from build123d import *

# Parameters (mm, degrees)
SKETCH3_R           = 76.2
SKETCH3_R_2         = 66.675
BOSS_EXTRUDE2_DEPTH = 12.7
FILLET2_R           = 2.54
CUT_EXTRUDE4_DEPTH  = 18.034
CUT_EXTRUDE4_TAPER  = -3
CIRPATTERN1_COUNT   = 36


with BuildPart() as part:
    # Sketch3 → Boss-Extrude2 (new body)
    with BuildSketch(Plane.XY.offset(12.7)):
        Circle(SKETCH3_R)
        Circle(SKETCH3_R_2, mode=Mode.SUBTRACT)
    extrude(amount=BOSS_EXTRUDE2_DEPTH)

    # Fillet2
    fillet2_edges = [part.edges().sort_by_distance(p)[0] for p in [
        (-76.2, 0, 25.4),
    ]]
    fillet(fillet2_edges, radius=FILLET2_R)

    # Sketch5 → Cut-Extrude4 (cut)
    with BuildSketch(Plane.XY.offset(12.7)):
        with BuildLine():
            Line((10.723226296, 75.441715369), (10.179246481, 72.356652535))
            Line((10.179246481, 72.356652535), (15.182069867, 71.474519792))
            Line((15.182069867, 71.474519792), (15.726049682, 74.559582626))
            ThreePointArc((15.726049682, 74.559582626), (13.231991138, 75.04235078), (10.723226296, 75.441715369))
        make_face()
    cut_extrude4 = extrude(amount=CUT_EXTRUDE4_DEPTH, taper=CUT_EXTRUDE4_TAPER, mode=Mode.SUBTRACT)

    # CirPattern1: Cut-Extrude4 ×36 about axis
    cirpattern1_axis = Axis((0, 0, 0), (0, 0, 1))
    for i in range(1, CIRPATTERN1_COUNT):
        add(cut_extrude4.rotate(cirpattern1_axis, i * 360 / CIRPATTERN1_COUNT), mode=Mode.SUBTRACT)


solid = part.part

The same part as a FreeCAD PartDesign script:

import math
import FreeCAD as App
import Part
import Sketcher
Q = App.Units.Quantity


def edges_at(feature, points):
    """Names of the edges that pass closest to the given points."""
    edges = feature.Shape.Edges
    near = lambda p: min(range(len(edges)), key=lambda i: edges[i].distToShape(Part.Vertex(*p))[0])
    return sorted({f"Edge{near(p) + 1}" for p in points})

doc = App.newDocument("Part")
body = doc.addObject("PartDesign::Body", "Body")

# Sketch on XY plane
sketch1 = body.newObject("Sketcher::SketchObject", "Sketch")
sketch1.AttachmentSupport = (doc.getObject("XY_Plane"), [""])
sketch1.MapMode = "FlatFace"
sketch1.AttachmentOffset = App.Placement(App.Vector(0, 0, 0.5 * 25.4), App.Rotation())
sketch1.addGeometry(Part.Circle(App.Vector(0, 0, 0), App.Vector(0, 0, 1), 76.2), False)
sketch1.addGeometry(Part.Circle(App.Vector(0, 0, 0), App.Vector(0, 0, 1), 66.675), False)
sketch1.addConstraint(Sketcher.Constraint("Coincident", 0, 3, -1, 1))
sketch1.addConstraint(Sketcher.Constraint("Coincident", 1, 3, -1, 1))
sketch1.addConstraint(Sketcher.Constraint("Diameter", 0, Q("6 in")))
sketch1.addConstraint(Sketcher.Constraint("Diameter", 1, Q("5.25 in")))
pad1 = body.newObject("PartDesign::Pad", "Pad")
pad1.Profile = sketch1
pad1.Length = Q("0.5 in")
doc.recompute()

fillet = body.newObject("PartDesign::Fillet", "Fillet")
fillet.Base = (pad1, edges_at(pad1, [(-76.2, 0, 25.4)]))
fillet.Radius = Q("0.1 in")

# Sketch on XY plane
sketch2 = body.newObject("Sketcher::SketchObject", "Sketch001")
sketch2.AttachmentSupport = (doc.getObject("XY_Plane"), [""])
sketch2.MapMode = "FlatFace"
sketch2.AttachmentOffset = App.Placement(App.Vector(0, 0, 0.5 * 25.4), App.Rotation())
sketch2.addGeometry(Part.LineSegment(App.Vector(10.723226, 75.441715, 0), App.Vector(10.179246, 72.356653, 0)), False)
sketch2.addGeometry(Part.LineSegment(App.Vector(10.179246, 72.356653, 0), App.Vector(15.18207, 71.47452, 0)), False)
sketch2.addGeometry(Part.LineSegment(App.Vector(15.18207, 71.47452, 0), App.Vector(15.72605, 74.559583, 0)), False)
sketch2.addGeometry(Part.ArcOfCircle(Part.Circle(App.Vector(0, 0.000001, 0), App.Vector(0, 0, 1), 76.199999), math.radians(78.089787), math.radians(81.910213)), False)
sketch2.addConstraint(Sketcher.Constraint("Coincident", 0, 2, 1, 1))
sketch2.addConstraint(Sketcher.Constraint("Coincident", 1, 2, 2, 1))
sketch2.addConstraint(Sketcher.Constraint("Coincident", 2, 2, 3, 1))
sketch2.addConstraint(Sketcher.Constraint("Coincident", 3, 2, 0, 1))
sketch2.addConstraint(Sketcher.Constraint("Coincident", 3, 3, -1, 1))
sketch2.addConstraint(Sketcher.Constraint("Perpendicular", 0, 1))
sketch2.addConstraint(Sketcher.Constraint("Perpendicular", 1, 2))
sketch2.addConstraint(Sketcher.Constraint("Equal", 0, 2))
sketch2.addConstraint(Sketcher.Constraint("Radius", 3, Q("3 in")))
sketch2.addConstraint(Sketcher.Constraint("Angle", 0, Q("-100 deg")))
sketch2.addConstraint(Sketcher.Constraint("Distance", 1, Q("0.2 in")))
sketch2.addConstraint(Sketcher.Constraint("DistanceX", -1, 1, 1, 2, Q("15.18207 mm")))
pocket1 = body.newObject("PartDesign::Pocket", "Pocket")
pocket1.Profile = sketch2
pocket1.Length = Q("0.71 in")
pocket1.Reversed = True
pocket1.TaperAngle = 3
doc.recompute()

polarpattern = body.newObject("PartDesign::PolarPattern", "PolarPattern")
polarpattern.Originals = [pocket1]
polarpattern.Axis = (doc.getObject("Z_Axis"), [""])
polarpattern.Angle = 360
polarpattern.Occurrences = 36
body.Tip = polarpattern

doc.recompute()
